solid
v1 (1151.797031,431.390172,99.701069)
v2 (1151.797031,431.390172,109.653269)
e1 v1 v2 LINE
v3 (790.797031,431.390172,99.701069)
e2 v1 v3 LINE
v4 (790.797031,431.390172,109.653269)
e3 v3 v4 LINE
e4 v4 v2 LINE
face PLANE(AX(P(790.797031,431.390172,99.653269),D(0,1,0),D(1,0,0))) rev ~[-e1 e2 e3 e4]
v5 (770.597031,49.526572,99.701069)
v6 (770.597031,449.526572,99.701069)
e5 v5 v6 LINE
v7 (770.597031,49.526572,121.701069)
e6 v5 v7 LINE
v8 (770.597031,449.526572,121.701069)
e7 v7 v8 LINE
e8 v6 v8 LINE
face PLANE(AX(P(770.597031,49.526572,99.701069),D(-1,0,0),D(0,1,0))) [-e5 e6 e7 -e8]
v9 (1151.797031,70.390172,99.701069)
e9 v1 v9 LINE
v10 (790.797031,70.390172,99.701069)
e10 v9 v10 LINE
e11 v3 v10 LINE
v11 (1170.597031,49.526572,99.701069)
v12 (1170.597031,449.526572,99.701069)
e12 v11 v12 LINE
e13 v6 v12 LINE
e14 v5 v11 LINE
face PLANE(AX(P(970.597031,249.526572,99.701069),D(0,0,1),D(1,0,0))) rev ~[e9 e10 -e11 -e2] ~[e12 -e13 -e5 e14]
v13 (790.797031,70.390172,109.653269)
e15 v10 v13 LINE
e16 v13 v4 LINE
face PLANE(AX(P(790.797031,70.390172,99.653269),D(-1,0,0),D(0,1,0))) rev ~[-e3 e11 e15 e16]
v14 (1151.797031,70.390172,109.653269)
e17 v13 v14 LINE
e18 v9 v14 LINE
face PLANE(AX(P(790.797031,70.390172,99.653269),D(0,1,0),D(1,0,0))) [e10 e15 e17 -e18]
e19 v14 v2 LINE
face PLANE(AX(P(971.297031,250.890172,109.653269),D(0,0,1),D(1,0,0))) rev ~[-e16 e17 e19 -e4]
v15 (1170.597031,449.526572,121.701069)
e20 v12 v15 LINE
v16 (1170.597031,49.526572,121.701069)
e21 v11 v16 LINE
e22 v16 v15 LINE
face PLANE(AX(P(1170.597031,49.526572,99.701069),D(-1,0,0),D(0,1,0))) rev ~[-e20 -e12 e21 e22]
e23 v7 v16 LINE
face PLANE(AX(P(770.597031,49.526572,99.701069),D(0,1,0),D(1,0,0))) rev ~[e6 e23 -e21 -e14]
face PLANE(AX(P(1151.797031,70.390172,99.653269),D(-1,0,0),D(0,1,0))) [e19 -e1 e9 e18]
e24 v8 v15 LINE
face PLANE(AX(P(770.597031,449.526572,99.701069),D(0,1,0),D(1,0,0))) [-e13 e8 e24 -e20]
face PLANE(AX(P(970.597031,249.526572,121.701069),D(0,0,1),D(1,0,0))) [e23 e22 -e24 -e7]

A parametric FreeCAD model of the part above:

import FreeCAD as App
import Part
import Sketcher

V = App.Vector
Q = App.Units.Quantity

doc = App.newDocument("Part")
body = doc.addObject("PartDesign::Body", "Body")

# Sketch on XY plane
sketch1 = body.newObject("Sketcher::SketchObject", "Sketch")
sketch1.AttachmentSupport = (doc.getObject("XY_Plane"), [""])
sketch1.MapMode = "FlatFace"
sketch1.AttachmentOffset = App.Placement(V(0, 0, 98.4922), App.Rotation())
sketch1.addGeometry([
    Part.LineSegment(V(795.534, 432.3936, 0), V(795.534, 71.3936, 0)),
    Part.LineSegment(V(795.534, 71.3936, 0), V(1156.534, 71.3936, 0)),
    Part.LineSegment(V(1156.534, 71.3936, 0), V(1156.534, 432.3936, 0)),
    Part.LineSegment(V(1156.534, 432.3936, 0), V(795.534, 432.3936, 0)),
], False)
sketch1.addConstraint([
    Sketcher.Constraint("Coincident", 0, 2, 1, 1),
    Sketcher.Constraint("Coincident", 1, 2, 2, 1),
    Sketcher.Constraint("Coincident", 2, 2, 3, 1),
    Sketcher.Constraint("Coincident", 3, 2, 0, 1),
    Sketcher.Constraint("Vertical", 0),
    Sketcher.Constraint("Horizontal", 1),
    Sketcher.Constraint("Vertical", 2),
    Sketcher.Constraint("Horizontal", 3),
    Sketcher.Constraint("Equal", 3, 0),
    Sketcher.Constraint("DistanceX", 1, 1, 1, 2, Q("361 mm")),
    Sketcher.Constraint("DistanceX", -1, 1, 0, 2, Q("795.534 mm")),
    Sketcher.Constraint("DistanceY", -1, 1, 0, 2, Q("71.3936 mm")),
])
pad1 = body.newObject("PartDesign::Pad", "Pad")
pad1.Profile = sketch1
pad1.Length = 10
body2 = doc.addObject("PartDesign::Body", "Body001")

# Sketch on XY plane
sketch2 = body2.newObject("Sketcher::SketchObject", "Sketch001")
sketch2.AttachmentSupport = (doc.getObject("XY_Plane001"), [""])
sketch2.MapMode = "FlatFace"
sketch2.AttachmentOffset = App.Placement(V(0, 0, 98.54), App.Rotation())
sketch2.addGeometry([
    Part.LineSegment(V(775.334, 450.53, 0), V(775.334, 50.53, 0)),
    Part.LineSegment(V(775.334, 50.53, 0), V(1175.334, 50.53, 0)),
    Part.LineSegment(V(1175.334, 50.53, 0), V(1175.334, 450.53, 0)),
    Part.LineSegment(V(1175.334, 450.53, 0), V(775.334, 450.53, 0)),
], False)
sketch2.addConstraint([
    Sketcher.Constraint("Coincident", 0, 2, 1, 1),
    Sketcher.Constraint("Coincident", 1, 2, 2, 1),
    Sketcher.Constraint("Coincident", 2, 2, 3, 1),
    Sketcher.Constraint("Coincident", 3, 2, 0, 1),
    Sketcher.Constraint("Vertical", 0),
    Sketcher.Constraint("Horizontal", 1),
    Sketcher.Constraint("Vertical", 2),
    Sketcher.Constraint("Horizontal", 3),
    Sketcher.Constraint("Equal", 3, 0),
    Sketcher.Constraint("DistanceX", 1, 1, 1, 2, Q("400 mm")),
    Sketcher.Constraint("DistanceY", -1, 1, 0, 2, Q("50.53 mm")),
    Sketcher.Constraint("DistanceX", -1, 1, 0, 2, Q("775.334 mm")),
])
pad2 = body2.newObject("PartDesign::Pad", "Pad001")
pad2.Profile = sketch2
pad2.Length = 22
doc.recompute()

boolean = body2.newObject("PartDesign::Boolean", "Boolean")
boolean.Type = "Cut"
boolean.addObjects([body])
body3 = doc.addObject("PartDesign::Body", "Body002")
doc.recompute()

body2.Placement = App.Placement(V(-4.736969, -1.003428, 1.161069), App.Rotation(V(0, 0, 1), 0))
boolean2 = body3.newObject("PartDesign::Boolean", "Boolean001")
boolean2.Type = "Fuse"
boolean2.addObjects([body2])

doc.recompute()
